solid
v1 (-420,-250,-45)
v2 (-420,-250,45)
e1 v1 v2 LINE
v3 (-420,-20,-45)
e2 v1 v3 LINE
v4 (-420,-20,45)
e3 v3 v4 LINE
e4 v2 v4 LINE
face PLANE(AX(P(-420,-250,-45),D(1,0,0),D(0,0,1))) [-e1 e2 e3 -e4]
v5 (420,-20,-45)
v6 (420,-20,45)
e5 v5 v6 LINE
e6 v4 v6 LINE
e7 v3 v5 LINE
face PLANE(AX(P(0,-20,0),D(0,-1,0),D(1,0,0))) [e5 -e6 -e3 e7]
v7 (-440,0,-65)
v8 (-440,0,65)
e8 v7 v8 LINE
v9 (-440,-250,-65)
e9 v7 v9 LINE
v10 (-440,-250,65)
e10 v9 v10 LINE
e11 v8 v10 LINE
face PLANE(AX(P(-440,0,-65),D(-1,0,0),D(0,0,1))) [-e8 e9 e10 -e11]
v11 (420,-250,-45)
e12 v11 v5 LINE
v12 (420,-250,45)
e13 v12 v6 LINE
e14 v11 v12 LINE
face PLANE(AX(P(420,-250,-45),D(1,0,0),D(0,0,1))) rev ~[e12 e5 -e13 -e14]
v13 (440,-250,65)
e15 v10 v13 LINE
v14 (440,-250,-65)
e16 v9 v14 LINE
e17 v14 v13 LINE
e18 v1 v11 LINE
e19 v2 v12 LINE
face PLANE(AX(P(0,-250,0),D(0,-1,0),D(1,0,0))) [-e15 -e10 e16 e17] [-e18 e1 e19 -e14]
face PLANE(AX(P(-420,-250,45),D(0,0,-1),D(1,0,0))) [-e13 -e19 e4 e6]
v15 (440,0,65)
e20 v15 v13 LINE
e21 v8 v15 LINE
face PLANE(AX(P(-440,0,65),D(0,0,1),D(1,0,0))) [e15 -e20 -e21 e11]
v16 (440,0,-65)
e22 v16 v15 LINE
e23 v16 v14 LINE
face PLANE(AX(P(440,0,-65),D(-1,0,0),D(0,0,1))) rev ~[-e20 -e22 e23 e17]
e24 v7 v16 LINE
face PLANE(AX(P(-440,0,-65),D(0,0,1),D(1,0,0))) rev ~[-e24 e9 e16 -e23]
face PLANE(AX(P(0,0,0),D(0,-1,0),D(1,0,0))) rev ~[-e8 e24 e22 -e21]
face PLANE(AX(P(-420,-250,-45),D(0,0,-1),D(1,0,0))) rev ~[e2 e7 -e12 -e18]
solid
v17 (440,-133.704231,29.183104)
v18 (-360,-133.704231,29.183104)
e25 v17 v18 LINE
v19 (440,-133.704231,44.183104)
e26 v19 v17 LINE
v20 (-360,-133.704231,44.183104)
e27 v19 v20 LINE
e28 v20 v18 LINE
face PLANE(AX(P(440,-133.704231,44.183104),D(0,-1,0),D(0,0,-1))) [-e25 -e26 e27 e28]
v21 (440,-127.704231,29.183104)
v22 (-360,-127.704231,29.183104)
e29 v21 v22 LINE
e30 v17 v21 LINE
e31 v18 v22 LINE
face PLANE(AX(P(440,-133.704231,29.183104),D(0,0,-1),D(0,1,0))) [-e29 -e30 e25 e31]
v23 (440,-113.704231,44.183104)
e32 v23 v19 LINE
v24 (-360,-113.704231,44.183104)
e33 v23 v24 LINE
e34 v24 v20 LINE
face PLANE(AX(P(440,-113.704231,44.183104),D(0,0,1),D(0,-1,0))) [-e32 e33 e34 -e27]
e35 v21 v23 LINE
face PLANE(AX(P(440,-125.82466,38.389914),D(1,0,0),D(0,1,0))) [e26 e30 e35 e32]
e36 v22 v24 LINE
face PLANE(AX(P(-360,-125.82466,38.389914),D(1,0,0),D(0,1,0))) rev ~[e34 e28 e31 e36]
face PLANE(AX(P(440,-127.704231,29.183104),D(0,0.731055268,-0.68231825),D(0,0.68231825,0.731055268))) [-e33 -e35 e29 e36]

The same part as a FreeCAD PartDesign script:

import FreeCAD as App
import Part
import Sketcher


def add_polygon(sketch, points):
    """Adds a closed chain of lines whose ends are joined by coincident constraints."""
    first, n = sketch.GeometryCount, len(points)
    for a, b in zip(points, points[1:] + points[:1]):
        sketch.addGeometry(Part.LineSegment(App.Vector(*a, 0), App.Vector(*b, 0)), False)
    for i in range(n):
        sketch.addConstraint(Sketcher.Constraint("Coincident", first + i, 2, first + (i + 1) % n, 1))

doc = App.newDocument("Part")
params = doc.addObject("Spreadsheet::Sheet", "Params")
for row, (alias, value) in enumerate([
    ("sketch1_width", "880 mm"),
    ("sketch1_height", "130 mm"),
    ("pad1_length", "250 mm"),
    ("sketch2_width", "840 mm"),
    ("sketch2_height", "90 mm"),
    ("pocket1_length", "230 mm"),
    ("sketch3_width", "20 mm"),
    ("sketch3_width2", "6 mm"),
    ("sketch3_height", "15 mm"),
    ("pad2_length", "800 mm"),
], start=1):
    params.set(f"A{row}", alias)
    params.set(f"B{row}", "=" + value)
    params.setAlias(f"B{row}", alias)

body = doc.addObject("PartDesign::Body", "Body")

# Sketch on XZ plane
sketch1 = doc.addObject("Sketcher::SketchObject", "Sketch")
body.addObject(sketch1)
sketch1.AttachmentSupport = (doc.XZ_Plane, [""])
sketch1.MapMode = "FlatFace"
add_polygon(sketch1, [(-440, 65), (-440, -65), (440, -65), (440, 65)])  # lines 0-3
sketch1.addConstraint([
    Sketcher.Constraint("Vertical", 0),
    Sketcher.Constraint("Horizontal", 1),
    Sketcher.Constraint("Vertical", 2),
    Sketcher.Constraint("Horizontal", 3),
    Sketcher.Constraint("Symmetric", 0, 2, 2, 2, -1, 1),
    Sketcher.Constraint("DistanceX", 1, 1, 1, 2, 880.0),
    Sketcher.Constraint("DistanceY", 0, 2, 0, 1, 130.0),
])
sketch1.setExpression("Constraints[9]", "Params.sketch1_width")
sketch1.setExpression("Constraints[10]", "Params.sketch1_height")
pad1 = doc.addObject("PartDesign::Pad", "Pad")
body.addObject(pad1)
pad1.Profile = sketch1
pad1.setExpression("Length", "Params.pad1_length")

# Sketch on XZ plane
sketch2 = doc.addObject("Sketcher::SketchObject", "Sketch001")
body.addObject(sketch2)
sketch2.AttachmentSupport = (doc.XZ_Plane, [""])
sketch2.MapMode = "FlatFace"
sketch2.AttachmentOffset = App.Placement(App.Vector(0, 0, 250), App.Rotation())
add_polygon(sketch2, [(-420, 45), (-420, -45), (420, -45), (420, 45)])  # lines 0-3
sketch2.addConstraint([
    Sketcher.Constraint("Vertical", 0),
    Sketcher.Constraint("Horizontal", 1),
    Sketcher.Constraint("Vertical", 2),
    Sketcher.Constraint("Horizontal", 3),
    Sketcher.Constraint("Symmetric", 0, 2, 2, 2, -1, 1),
    Sketcher.Constraint("DistanceX", 1, 1, 1, 2, 840.0),
    Sketcher.Constraint("DistanceY", 0, 2, 0, 1, 90.0),
])
sketch2.setExpression("Constraints[9]", "Params.sketch2_width")
sketch2.setExpression("Constraints[10]", "Params.sketch2_height")
pocket1 = doc.addObject("PartDesign::Pocket", "Pocket")
body.addObject(pocket1)
pocket1.Profile = sketch2
pocket1.setExpression("Length", "Params.pocket1_length")
body2 = doc.addObject("PartDesign::Body", "Body001")

# Sketch on YZ plane
sketch3 = doc.addObject("Sketcher::SketchObject", "Sketch002")
body2.addObject(sketch3)
sketch3.AttachmentSupport = (doc.getObject("YZ_Plane001"), [""])
sketch3.MapMode = "FlatFace"
sketch3.AttachmentOffset = App.Placement(App.Vector(0, 0, 440), App.Rotation())
add_polygon(sketch3, [(-128, 29), (-114, 44), (-134, 44), (-134, 29)])  # lines 0-3
sketch3.addConstraint([
    Sketcher.Constraint("Horizontal", 1),
    Sketcher.Constraint("Vertical", 2),
    Sketcher.Constraint("Horizontal", 3),
    Sketcher.Constraint("DistanceX", 1, 2, 1, 1, 20.0),
    Sketcher.Constraint("DistanceX", 3, 1, 3, 2, 6.0),
    Sketcher.Constraint("DistanceY", 2, 2, 2, 1, 15.0),
    Sketcher.Constraint("DistanceX", 0, 2, -1, 1, 113.704231),
    Sketcher.Constraint("DistanceY", -1, 1, 0, 2, 44.183104),
])
sketch3.setExpression("Constraints[7]", "Params.sketch3_width")
sketch3.setExpression("Constraints[8]", "Params.sketch3_width2")
sketch3.setExpression("Constraints[9]", "Params.sketch3_height")
pad2 = doc.addObject("PartDesign::Pad", "Pad001")
body2.addObject(pad2)
pad2.Profile = sketch3
pad2.setExpression("Length", "Params.pad2_length")
pad2.Reversed = True

doc.recompute()
